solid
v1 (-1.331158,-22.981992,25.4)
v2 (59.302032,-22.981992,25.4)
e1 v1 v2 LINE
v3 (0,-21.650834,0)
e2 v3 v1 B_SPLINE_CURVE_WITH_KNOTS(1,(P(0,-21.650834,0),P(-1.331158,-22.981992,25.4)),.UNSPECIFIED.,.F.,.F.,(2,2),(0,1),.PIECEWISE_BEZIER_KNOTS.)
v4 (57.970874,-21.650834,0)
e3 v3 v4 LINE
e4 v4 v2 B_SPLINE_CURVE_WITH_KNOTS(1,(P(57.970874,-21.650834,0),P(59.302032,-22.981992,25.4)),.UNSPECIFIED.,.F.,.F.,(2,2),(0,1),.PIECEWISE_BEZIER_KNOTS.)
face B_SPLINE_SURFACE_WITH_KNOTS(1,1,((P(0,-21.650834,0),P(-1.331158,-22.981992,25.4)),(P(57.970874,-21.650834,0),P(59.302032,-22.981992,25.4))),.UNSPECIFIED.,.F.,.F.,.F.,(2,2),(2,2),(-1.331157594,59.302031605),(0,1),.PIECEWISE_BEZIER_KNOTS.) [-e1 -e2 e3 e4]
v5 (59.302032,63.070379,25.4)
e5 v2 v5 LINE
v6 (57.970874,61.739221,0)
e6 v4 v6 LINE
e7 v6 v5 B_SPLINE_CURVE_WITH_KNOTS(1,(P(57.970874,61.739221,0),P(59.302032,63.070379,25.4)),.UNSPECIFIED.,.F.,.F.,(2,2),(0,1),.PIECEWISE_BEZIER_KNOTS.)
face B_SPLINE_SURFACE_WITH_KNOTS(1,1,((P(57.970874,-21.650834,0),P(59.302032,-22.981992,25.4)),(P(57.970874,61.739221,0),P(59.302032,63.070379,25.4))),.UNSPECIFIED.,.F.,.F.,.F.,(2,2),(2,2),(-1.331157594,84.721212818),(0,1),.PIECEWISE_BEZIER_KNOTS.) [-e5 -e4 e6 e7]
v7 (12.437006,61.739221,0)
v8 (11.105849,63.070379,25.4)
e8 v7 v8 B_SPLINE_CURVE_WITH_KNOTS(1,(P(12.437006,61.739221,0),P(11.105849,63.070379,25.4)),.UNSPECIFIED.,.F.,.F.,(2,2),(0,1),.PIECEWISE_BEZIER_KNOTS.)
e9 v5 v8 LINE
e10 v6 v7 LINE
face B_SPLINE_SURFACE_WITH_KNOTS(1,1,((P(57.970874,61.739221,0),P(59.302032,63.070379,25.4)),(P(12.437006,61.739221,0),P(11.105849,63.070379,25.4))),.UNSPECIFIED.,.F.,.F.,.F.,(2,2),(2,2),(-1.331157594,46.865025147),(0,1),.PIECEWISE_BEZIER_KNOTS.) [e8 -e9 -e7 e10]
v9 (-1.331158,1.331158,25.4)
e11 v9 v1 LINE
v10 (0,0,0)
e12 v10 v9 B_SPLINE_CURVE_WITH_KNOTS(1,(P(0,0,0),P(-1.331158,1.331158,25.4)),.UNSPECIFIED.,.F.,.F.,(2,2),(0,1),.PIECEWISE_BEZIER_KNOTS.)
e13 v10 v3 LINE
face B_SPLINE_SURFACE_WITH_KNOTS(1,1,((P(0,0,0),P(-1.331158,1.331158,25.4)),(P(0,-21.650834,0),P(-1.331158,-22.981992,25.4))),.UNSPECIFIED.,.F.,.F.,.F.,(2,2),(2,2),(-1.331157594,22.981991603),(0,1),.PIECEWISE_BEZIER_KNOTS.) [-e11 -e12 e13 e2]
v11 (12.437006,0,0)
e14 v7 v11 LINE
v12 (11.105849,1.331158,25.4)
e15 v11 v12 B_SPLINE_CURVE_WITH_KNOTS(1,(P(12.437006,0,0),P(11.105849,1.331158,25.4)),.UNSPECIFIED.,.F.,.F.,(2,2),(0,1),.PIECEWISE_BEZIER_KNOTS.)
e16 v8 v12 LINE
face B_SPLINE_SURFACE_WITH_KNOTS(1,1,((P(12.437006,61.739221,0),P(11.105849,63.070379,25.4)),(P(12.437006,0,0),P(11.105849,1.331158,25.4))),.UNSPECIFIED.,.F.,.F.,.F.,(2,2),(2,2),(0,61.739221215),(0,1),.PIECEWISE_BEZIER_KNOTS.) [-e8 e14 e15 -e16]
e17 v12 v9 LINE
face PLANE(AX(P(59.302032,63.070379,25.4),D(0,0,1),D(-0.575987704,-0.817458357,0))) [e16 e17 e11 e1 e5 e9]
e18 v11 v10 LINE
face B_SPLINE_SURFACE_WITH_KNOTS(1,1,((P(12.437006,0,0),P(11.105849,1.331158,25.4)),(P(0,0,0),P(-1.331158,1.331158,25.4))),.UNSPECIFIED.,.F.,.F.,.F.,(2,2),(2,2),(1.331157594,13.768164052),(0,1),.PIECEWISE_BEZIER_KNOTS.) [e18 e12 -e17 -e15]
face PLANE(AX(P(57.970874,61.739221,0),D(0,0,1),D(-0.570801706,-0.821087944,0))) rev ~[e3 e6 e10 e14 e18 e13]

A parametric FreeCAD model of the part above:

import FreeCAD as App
import Part
import Sketcher
Q = App.Units.Quantity

doc = App.newDocument("Part")
params = doc.addObject("Spreadsheet::Sheet", "Params")
for row, (alias, value) in enumerate([
    ("pad1_length", "1 in"),
    ("pad1_taper", "3 deg"),
], start=1):
    params.set(f"A{row}", alias)
    params.set(f"B{row}", "=" + value)
    params.setAlias(f"B{row}", alias)

body = doc.addObject("PartDesign::Body", "Body")

# Sketch on XY plane
sketch1 = body.newObject("Sketcher::SketchObject", "Sketch")
sketch1.AttachmentSupport = (doc.getObject("XY_Plane"), [""])
sketch1.MapMode = "FlatFace"
sketch1.addGeometry([
    Part.LineSegment(App.Vector(58, 62, 0), App.Vector(12, 62, 0)),  # 0
    Part.LineSegment(App.Vector(12, 62, 0), App.Vector(12, 0, 0)),  # 1
    Part.LineSegment(App.Vector(12, 0, 0), App.Vector(0, 0, 0)),  # 2
    Part.LineSegment(App.Vector(0, 0, 0), App.Vector(0, -22, 0)),  # 3
    Part.LineSegment(App.Vector(0, -22, 0), App.Vector(58, -22, 0)),  # 4
    Part.LineSegment(App.Vector(58, -22, 0), App.Vector(58, 62, 0)),  # 5
], False)
sketch1.addConstraint([
    Sketcher.Constraint("Coincident", 0, 2, 1, 1),
    Sketcher.Constraint("Coincident", 1, 2, 2, 1),
    Sketcher.Constraint("Coincident", 2, 2, 3, 1),
    Sketcher.Constraint("Coincident", 3, 2, 4, 1),
    Sketcher.Constraint("Coincident", 4, 2, 5, 1),
    Sketcher.Constraint("Coincident", 5, 2, 0, 1),
    Sketcher.Constraint("Horizontal", 0),
    Sketcher.Constraint("Vertical", 1),
    Sketcher.Constraint("Horizontal", 2),
    Sketcher.Constraint("Vertical", 3),
    Sketcher.Constraint("Horizontal", 4),
    Sketcher.Constraint("Vertical", 5),
    Sketcher.Constraint("Coincident", 2, 2, -1, 1),
    Sketcher.Constraint("DistanceY", 1, 2, 1, 1, Q("61.739221 mm")),
    Sketcher.Constraint("DistanceX", 0, 2, 0, 1, Q("45.533868 mm")),
    Sketcher.Constraint("DistanceX", 2, 2, 2, 1, Q("12.437006 mm")),
    Sketcher.Constraint("DistanceY", 3, 2, 3, 1, Q("21.650834 mm")),
])
pad1 = body.newObject("PartDesign::Pad", "Pad")
pad1.Profile = sketch1
pad1.setExpression("Length", "Params.pad1_length")
pad1.setExpression("TaperAngle", "Params.pad1_taper")

doc.recompute()
